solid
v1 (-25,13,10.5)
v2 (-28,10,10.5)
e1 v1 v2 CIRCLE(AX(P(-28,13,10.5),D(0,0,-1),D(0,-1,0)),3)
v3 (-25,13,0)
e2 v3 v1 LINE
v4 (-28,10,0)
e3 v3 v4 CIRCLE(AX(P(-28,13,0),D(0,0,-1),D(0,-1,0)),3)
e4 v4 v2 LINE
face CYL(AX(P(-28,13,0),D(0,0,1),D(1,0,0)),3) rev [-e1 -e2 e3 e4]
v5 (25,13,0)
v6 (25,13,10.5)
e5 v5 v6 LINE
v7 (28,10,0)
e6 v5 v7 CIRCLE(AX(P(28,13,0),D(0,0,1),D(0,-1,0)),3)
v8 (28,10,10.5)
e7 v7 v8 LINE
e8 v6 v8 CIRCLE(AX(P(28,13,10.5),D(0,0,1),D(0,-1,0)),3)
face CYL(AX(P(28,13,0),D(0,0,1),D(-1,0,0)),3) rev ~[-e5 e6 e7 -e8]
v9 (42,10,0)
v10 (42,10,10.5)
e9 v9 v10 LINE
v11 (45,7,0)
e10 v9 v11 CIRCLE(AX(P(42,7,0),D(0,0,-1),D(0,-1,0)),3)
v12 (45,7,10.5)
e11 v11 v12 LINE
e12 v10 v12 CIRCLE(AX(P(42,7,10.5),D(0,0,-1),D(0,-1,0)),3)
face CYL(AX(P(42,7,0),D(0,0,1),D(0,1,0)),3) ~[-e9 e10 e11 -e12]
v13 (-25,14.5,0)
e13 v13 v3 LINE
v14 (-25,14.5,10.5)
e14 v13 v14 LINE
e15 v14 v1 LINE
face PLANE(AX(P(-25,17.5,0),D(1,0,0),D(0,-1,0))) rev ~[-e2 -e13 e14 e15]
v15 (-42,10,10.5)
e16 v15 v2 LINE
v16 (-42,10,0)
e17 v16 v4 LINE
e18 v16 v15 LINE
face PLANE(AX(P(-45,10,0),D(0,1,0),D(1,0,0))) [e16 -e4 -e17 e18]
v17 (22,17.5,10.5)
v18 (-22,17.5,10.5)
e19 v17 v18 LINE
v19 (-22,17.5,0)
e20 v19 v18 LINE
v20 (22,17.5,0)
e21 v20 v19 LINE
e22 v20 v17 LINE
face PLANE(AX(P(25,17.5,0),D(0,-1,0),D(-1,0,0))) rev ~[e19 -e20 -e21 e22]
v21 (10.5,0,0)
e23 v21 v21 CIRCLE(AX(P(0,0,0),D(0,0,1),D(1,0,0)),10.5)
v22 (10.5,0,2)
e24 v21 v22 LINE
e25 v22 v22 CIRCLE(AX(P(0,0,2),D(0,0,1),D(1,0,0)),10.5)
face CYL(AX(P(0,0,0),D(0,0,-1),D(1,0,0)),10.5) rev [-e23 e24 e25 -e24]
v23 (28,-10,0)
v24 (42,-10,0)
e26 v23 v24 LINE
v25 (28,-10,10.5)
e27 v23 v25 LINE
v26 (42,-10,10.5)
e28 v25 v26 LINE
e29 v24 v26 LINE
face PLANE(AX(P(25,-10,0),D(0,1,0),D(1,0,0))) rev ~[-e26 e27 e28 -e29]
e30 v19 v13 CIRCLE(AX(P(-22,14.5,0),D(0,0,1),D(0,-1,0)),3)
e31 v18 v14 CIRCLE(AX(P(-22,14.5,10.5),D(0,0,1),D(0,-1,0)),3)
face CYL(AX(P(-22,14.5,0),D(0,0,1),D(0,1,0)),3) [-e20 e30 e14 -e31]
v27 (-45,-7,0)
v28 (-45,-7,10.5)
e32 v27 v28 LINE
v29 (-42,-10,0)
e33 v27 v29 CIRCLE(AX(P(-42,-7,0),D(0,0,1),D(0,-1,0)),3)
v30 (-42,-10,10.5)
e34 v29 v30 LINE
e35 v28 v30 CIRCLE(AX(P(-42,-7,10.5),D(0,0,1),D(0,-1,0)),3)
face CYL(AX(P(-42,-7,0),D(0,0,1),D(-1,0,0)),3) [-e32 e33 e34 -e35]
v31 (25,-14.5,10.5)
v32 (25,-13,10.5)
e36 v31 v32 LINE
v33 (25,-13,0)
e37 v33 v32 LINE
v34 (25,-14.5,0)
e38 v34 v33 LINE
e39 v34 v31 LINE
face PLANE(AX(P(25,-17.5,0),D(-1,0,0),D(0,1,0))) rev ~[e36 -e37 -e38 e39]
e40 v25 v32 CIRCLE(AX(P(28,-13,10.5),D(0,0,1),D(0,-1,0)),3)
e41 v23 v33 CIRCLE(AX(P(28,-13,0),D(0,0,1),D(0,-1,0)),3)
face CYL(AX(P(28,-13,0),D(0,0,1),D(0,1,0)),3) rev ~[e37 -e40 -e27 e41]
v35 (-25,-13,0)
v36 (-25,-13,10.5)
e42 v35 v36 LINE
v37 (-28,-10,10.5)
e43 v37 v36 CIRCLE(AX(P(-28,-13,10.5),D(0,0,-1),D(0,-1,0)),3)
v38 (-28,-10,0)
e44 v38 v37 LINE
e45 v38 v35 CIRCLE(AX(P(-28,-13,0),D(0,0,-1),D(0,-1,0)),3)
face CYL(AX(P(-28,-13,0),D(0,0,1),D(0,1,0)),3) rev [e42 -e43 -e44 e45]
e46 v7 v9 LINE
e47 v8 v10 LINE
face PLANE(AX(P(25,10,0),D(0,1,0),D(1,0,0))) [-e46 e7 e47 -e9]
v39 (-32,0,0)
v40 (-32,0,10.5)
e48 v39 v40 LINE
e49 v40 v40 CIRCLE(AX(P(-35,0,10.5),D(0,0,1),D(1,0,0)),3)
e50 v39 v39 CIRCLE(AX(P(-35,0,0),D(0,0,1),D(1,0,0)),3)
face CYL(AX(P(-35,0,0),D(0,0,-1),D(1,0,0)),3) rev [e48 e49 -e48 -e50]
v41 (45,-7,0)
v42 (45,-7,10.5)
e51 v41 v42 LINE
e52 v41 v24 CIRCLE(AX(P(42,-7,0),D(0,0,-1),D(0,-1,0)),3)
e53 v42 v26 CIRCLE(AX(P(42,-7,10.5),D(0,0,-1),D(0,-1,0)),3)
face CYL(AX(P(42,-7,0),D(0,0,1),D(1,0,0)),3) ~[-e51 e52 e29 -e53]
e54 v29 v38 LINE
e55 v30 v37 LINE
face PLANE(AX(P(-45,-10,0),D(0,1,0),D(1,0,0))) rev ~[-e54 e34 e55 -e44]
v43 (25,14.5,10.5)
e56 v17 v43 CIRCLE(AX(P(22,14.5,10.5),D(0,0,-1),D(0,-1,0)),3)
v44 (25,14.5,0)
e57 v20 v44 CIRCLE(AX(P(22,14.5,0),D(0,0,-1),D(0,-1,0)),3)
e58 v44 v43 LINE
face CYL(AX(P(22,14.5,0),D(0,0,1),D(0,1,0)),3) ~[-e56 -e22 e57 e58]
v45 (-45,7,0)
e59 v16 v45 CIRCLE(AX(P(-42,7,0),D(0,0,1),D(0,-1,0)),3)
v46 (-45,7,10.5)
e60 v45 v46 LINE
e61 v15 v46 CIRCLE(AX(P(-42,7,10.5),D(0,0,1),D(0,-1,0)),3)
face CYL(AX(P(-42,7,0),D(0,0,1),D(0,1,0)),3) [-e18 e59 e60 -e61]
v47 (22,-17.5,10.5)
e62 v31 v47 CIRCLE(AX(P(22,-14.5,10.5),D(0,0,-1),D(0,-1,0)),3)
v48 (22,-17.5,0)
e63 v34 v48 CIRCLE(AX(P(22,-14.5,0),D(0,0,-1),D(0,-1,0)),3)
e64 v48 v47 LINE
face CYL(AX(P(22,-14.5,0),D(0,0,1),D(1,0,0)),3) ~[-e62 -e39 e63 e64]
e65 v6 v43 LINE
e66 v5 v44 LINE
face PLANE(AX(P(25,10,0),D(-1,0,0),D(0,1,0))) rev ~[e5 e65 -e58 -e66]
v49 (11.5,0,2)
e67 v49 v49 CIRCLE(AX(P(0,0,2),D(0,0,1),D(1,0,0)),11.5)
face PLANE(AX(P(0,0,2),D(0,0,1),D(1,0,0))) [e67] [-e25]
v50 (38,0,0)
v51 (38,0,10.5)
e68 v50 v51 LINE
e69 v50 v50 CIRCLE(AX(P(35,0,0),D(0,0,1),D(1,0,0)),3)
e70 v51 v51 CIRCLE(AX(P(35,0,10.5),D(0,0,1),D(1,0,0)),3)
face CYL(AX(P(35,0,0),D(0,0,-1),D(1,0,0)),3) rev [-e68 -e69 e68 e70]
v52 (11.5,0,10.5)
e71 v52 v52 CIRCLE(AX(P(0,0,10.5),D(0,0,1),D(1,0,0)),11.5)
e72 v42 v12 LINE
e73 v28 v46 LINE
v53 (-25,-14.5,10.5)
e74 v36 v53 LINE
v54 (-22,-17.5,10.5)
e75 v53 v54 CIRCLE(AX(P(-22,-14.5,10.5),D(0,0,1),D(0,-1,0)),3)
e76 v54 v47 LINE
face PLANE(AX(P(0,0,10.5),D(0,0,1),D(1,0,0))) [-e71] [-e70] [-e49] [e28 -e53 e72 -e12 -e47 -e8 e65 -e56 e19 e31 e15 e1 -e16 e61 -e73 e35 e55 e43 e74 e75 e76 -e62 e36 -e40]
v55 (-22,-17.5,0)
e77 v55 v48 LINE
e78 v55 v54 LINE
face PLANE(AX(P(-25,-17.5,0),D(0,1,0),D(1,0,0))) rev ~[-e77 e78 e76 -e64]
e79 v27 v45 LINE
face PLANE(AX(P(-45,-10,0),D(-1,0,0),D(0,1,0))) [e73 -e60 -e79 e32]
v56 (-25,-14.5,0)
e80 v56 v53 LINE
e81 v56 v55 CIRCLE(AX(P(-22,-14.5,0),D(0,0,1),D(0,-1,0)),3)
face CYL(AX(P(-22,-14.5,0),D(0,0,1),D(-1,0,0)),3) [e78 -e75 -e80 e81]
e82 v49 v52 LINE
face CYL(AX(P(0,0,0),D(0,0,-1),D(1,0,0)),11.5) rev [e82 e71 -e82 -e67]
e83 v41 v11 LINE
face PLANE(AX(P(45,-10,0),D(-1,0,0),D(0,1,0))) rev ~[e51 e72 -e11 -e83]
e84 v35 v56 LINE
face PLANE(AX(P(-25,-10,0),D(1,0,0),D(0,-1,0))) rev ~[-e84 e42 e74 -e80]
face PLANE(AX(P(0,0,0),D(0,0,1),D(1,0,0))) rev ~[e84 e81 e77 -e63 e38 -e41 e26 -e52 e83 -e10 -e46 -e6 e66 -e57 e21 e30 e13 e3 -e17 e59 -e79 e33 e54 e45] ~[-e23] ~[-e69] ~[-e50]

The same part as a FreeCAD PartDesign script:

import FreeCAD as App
import Part
import Sketcher
Q = App.Units.Quantity


def edges_at(feature, points):
    """Names of the edges that pass closest to the given points."""
    edges = feature.Shape.Edges
    near = lambda p: min(range(len(edges)), key=lambda i: edges[i].distToShape(Part.Vertex(*p))[0])
    return sorted({f"Edge{near(p) + 1}" for p in points})

doc = App.newDocument("Part")
body = doc.addObject("PartDesign::Body", "Body")

sketch1 = body.newObject("Sketcher::SketchObject", "Sketch")
sketch1.AttachmentSupport = (doc.getObject("XY_Plane"), [""])
sketch1.MapMode = "FlatFace"
sketch1.addGeometry([
    Part.LineSegment(App.Vector(25, 17.5, 0), App.Vector(-25, 17.5, 0)),
    Part.LineSegment(App.Vector(-25, 17.5, 0), App.Vector(-25, 10, 0)),
    Part.LineSegment(App.Vector(-25, 10, 0), App.Vector(-45, 10, 0)),
    Part.LineSegment(App.Vector(-45, 10, 0), App.Vector(-45, -10, 0)),
    Part.LineSegment(App.Vector(-45, -10, 0), App.Vector(-25, -10, 0)),
    Part.LineSegment(App.Vector(-25, -10, 0), App.Vector(-25, -17.5, 0)),
    Part.LineSegment(App.Vector(-25, -17.5, 0), App.Vector(25, -17.5, 0)),
    Part.LineSegment(App.Vector(25, -17.5, 0), App.Vector(25, -10, 0)),
    Part.LineSegment(App.Vector(25, -10, 0), App.Vector(45, -10, 0)),
    Part.LineSegment(App.Vector(45, -10, 0), App.Vector(45, 10, 0)),
    Part.LineSegment(App.Vector(45, 10, 0), App.Vector(25, 10, 0)),
    Part.LineSegment(App.Vector(25, 10, 0), App.Vector(25, 17.5, 0)),
    Part.Circle(App.Vector(-35, 0, 0), App.Vector(0, 0, 1), 3),
    Part.Circle(App.Vector(0, 0, 0), App.Vector(0, 0, 1), 11.5),
    Part.Circle(App.Vector(35, 0, 0), App.Vector(0, 0, 1), 3),
], False)
sketch1.addConstraint([
    Sketcher.Constraint("Coincident", 0, 2, 1, 1),
    Sketcher.Constraint("Coincident", 1, 2, 2, 1),
    Sketcher.Constraint("Coincident", 2, 2, 3, 1),
    Sketcher.Constraint("Coincident", 3, 2, 4, 1),
    Sketcher.Constraint("Coincident", 4, 2, 5, 1),
    Sketcher.Constraint("Coincident", 5, 2, 6, 1),
    Sketcher.Constraint("Coincident", 6, 2, 7, 1),
    Sketcher.Constraint("Coincident", 7, 2, 8, 1),
    Sketcher.Constraint("Coincident", 8, 2, 9, 1),
    Sketcher.Constraint("Coincident", 9, 2, 10, 1),
    Sketcher.Constraint("Coincident", 10, 2, 11, 1),
    Sketcher.Constraint("Coincident", 11, 2, 0, 1),
    Sketcher.Constraint("Horizontal", 0),
    Sketcher.Constraint("Vertical", 1),
    Sketcher.Constraint("Horizontal", 2),
    Sketcher.Constraint("Vertical", 3),
    Sketcher.Constraint("Horizontal", 4),
    Sketcher.Constraint("Vertical", 5),
    Sketcher.Constraint("Horizontal", 6),
    Sketcher.Constraint("Vertical", 7),
    Sketcher.Constraint("Horizontal", 8),
    Sketcher.Constraint("Vertical", 9),
    Sketcher.Constraint("Horizontal", 10),
    Sketcher.Constraint("Vertical", 11),
    Sketcher.Constraint("Coincident", 13, 3, -1, 1),
    Sketcher.Constraint("Equal", 12, 14),
    Sketcher.Constraint("Symmetric", 12, 3, 14, 3, -1, 1),
    Sketcher.Constraint("Symmetric", 0, 2, 6, 2, -1, 1),
    Sketcher.Constraint("Symmetric", 2, 2, 8, 2, -1, 1),
    Sketcher.Constraint("Symmetric", 4, 2, 10, 2, -1, 1),
    Sketcher.Constraint("Symmetric", 4, 2, 7, 2, -2),
    Sketcher.Constraint("PointOnObject", 12, 3, -1),
    Sketcher.Constraint("Equal", 10, 3),
    Sketcher.Constraint("Diameter", 12, Q("6 mm")),
    Sketcher.Constraint("Diameter", 13, Q("23 mm")),
    Sketcher.Constraint("DistanceX", 0, 2, 0, 1, Q("50 mm")),
    Sketcher.Constraint("DistanceX", 2, 2, 2, 1, Q("20 mm")),
    Sketcher.Constraint("DistanceY", 1, 2, 1, 1, Q("7.5 mm")),
    Sketcher.Constraint("DistanceX", 12, 3, -1, 1, Q("35 mm")),
])
pad1 = body.newObject("PartDesign::Pad", "Pad")
pad1.Profile = sketch1
pad1.Length = 10.5

sketch2 = body.newObject("Sketcher::SketchObject", "Sketch001")
sketch2.AttachmentSupport = (doc.getObject("XY_Plane"), [""])
sketch2.MapMode = "FlatFace"
sketch2.addGeometry([
    Part.Circle(App.Vector(0, 0, 0), App.Vector(0, 0, 1), 12),
    Part.Circle(App.Vector(0, 0, 0), App.Vector(0, 0, 1), 10),
], False)
sketch2.addConstraint([
    Sketcher.Constraint("Coincident", 0, 3, -1, 1),
    Sketcher.Constraint("Coincident", 1, 3, -1, 1),
    Sketcher.Constraint("Diameter", 0, Q("23 mm")),
    Sketcher.Constraint("Diameter", 1, Q("21 mm")),
])
pad2 = body.newObject("PartDesign::Pad", "Pad001")
pad2.Profile = sketch2
pad2.Length = 2
doc.recompute()

fillet = body.newObject("PartDesign::Fillet", "Fillet")
fillet.Base = (pad2, edges_at(pad2, [
    (-25, -10, 5.25),
    (-25, 10, 5.25),
    (25, 10, 5.25),
    (25, -10, 5.25),
    (25, 17.5, 5.25),
    (25, -17.5, 5.25),
    (-25, -17.5, 5.25),
    (-25, 17.5, 5.25),
    (-45, 10, 5.25),
    (-45, -10, 5.25),
    (45, -10, 5.25),
    (45, 10, 5.25),
]))
fillet.Radius = 3

doc.recompute()
